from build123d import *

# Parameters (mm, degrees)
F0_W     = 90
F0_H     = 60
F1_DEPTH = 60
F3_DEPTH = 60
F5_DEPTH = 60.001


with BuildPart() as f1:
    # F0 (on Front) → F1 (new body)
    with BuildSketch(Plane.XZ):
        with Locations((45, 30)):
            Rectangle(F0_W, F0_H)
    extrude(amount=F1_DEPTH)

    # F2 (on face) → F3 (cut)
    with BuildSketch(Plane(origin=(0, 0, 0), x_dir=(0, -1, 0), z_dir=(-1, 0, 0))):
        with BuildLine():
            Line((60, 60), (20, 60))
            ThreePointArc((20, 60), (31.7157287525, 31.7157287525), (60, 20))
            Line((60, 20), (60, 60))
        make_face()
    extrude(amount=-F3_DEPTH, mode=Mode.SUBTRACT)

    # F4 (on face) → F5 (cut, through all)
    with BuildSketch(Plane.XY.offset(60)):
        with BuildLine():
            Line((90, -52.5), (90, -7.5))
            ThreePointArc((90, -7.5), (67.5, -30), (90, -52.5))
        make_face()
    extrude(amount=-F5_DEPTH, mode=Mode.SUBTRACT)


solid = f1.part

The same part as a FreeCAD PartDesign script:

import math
import FreeCAD as App
import Part
import Sketcher

V = App.Vector
Q = App.Units.Quantity

doc = App.newDocument("Part")
body = doc.addObject("PartDesign::Body", "Body")

# Sketch on XZ plane
sketch1 = body.newObject("Sketcher::SketchObject", "Sketch")
sketch1.AttachmentSupport = (doc.getObject("XZ_Plane"), [""])
sketch1.MapMode = "FlatFace"
sketch1.addGeometry([
    Part.LineSegment(V(0, 60, 0), V(0, 0, 0)),
    Part.LineSegment(V(0, 0, 0), V(90, 0, 0)),
    Part.LineSegment(V(90, 0, 0), V(90, 60, 0)),
    Part.LineSegment(V(90, 60, 0), V(0, 60, 0)),
], False)
sketch1.addConstraint([
    Sketcher.Constraint("Coincident", 0, 2, 1, 1),
    Sketcher.Constraint("Coincident", 1, 2, 2, 1),
    Sketcher.Constraint("Coincident", 2, 2, 3, 1),
    Sketcher.Constraint("Coincident", 3, 2, 0, 1),
    Sketcher.Constraint("Vertical", 0),
    Sketcher.Constraint("Horizontal", 1),
    Sketcher.Constraint("Vertical", 2),
    Sketcher.Constraint("Horizontal", 3),
    Sketcher.Constraint("Coincident", 0, 2, -1, 1),
    Sketcher.Constraint("DistanceX", 1, 1, 1, 2, Q("90 mm")),
    Sketcher.Constraint("DistanceY", 0, 2, 0, 1, Q("60 mm")),
])
pad1 = body.newObject("PartDesign::Pad", "Pad")
pad1.Profile = sketch1
pad1.Length = 60

# Sketch on YZ plane
sketch2 = body.newObject("Sketcher::SketchObject", "Sketch001")
sketch2.AttachmentSupport = (doc.getObject("YZ_Plane"), [""])
sketch2.MapMode = "FlatFace"
sketch2.addGeometry([
    Part.LineSegment(V(-60, 60, 0), V(-20, 60, 0)),
    Part.ArcOfCircle(Part.Circle(V(-60, 60, 0), V(0, 0, 1), 40), math.radians(-90), math.radians(0)),
    Part.LineSegment(V(-60, 20, 0), V(-60, 60, 0)),
], False)
sketch2.addConstraint([
    Sketcher.Constraint("Coincident", 0, 2, 1, 2),
    Sketcher.Constraint("Coincident", 1, 1, 2, 1),
    Sketcher.Constraint("Coincident", 2, 2, 0, 1),
    Sketcher.Constraint("Horizontal", 0),
    Sketcher.Constraint("Vertical", 2),
    Sketcher.Constraint("Coincident", 2, 2, 1, 3),
    Sketcher.Constraint("Radius", 1, Q("40 mm")),
    Sketcher.Constraint("DistanceX", 1, 3, -1, 1, Q("60 mm")),
    Sketcher.Constraint("DistanceY", -1, 1, 1, 3, Q("60 mm")),
])
pocket1 = body.newObject("PartDesign::Pocket", "Pocket")
pocket1.Profile = sketch2
pocket1.Length = 60
pocket1.Reversed = True

# Sketch on XY plane
sketch3 = body.newObject("Sketcher::SketchObject", "Sketch002")
sketch3.AttachmentSupport = (doc.getObject("XY_Plane"), [""])
sketch3.MapMode = "FlatFace"
sketch3.AttachmentOffset = App.Placement(V(0, 0, 60), App.Rotation())
sketch3.addGeometry([
    Part.LineSegment(V(90, -52.5, 0), V(90, -7.5, 0)),
    Part.ArcOfCircle(Part.Circle(V(90, -30, 0), V(0, 0, 1), 22.5), math.radians(90), math.radians(270)),
], False)
sketch3.addConstraint([
    Sketcher.Constraint("Coincident", 0, 1, 1, 2),
    Sketcher.Constraint("Coincident", 1, 1, 0, 2),
    Sketcher.Constraint("Vertical", 0),
    Sketcher.Constraint("Vertical", 1, 3, 0, 1),
    Sketcher.Constraint("Radius", 1, Q("22.5 mm")),
    Sketcher.Constraint("DistanceX", -1, 1, 1, 3, Q("90 mm")),
    Sketcher.Constraint("DistanceY", 1, 3, -1, 1, Q("30 mm")),
])
pocket2 = body.newObject("PartDesign::Pocket", "Pocket001")
pocket2.Profile = sketch3
pocket2.Type = "ThroughAll"

doc.recompute()
